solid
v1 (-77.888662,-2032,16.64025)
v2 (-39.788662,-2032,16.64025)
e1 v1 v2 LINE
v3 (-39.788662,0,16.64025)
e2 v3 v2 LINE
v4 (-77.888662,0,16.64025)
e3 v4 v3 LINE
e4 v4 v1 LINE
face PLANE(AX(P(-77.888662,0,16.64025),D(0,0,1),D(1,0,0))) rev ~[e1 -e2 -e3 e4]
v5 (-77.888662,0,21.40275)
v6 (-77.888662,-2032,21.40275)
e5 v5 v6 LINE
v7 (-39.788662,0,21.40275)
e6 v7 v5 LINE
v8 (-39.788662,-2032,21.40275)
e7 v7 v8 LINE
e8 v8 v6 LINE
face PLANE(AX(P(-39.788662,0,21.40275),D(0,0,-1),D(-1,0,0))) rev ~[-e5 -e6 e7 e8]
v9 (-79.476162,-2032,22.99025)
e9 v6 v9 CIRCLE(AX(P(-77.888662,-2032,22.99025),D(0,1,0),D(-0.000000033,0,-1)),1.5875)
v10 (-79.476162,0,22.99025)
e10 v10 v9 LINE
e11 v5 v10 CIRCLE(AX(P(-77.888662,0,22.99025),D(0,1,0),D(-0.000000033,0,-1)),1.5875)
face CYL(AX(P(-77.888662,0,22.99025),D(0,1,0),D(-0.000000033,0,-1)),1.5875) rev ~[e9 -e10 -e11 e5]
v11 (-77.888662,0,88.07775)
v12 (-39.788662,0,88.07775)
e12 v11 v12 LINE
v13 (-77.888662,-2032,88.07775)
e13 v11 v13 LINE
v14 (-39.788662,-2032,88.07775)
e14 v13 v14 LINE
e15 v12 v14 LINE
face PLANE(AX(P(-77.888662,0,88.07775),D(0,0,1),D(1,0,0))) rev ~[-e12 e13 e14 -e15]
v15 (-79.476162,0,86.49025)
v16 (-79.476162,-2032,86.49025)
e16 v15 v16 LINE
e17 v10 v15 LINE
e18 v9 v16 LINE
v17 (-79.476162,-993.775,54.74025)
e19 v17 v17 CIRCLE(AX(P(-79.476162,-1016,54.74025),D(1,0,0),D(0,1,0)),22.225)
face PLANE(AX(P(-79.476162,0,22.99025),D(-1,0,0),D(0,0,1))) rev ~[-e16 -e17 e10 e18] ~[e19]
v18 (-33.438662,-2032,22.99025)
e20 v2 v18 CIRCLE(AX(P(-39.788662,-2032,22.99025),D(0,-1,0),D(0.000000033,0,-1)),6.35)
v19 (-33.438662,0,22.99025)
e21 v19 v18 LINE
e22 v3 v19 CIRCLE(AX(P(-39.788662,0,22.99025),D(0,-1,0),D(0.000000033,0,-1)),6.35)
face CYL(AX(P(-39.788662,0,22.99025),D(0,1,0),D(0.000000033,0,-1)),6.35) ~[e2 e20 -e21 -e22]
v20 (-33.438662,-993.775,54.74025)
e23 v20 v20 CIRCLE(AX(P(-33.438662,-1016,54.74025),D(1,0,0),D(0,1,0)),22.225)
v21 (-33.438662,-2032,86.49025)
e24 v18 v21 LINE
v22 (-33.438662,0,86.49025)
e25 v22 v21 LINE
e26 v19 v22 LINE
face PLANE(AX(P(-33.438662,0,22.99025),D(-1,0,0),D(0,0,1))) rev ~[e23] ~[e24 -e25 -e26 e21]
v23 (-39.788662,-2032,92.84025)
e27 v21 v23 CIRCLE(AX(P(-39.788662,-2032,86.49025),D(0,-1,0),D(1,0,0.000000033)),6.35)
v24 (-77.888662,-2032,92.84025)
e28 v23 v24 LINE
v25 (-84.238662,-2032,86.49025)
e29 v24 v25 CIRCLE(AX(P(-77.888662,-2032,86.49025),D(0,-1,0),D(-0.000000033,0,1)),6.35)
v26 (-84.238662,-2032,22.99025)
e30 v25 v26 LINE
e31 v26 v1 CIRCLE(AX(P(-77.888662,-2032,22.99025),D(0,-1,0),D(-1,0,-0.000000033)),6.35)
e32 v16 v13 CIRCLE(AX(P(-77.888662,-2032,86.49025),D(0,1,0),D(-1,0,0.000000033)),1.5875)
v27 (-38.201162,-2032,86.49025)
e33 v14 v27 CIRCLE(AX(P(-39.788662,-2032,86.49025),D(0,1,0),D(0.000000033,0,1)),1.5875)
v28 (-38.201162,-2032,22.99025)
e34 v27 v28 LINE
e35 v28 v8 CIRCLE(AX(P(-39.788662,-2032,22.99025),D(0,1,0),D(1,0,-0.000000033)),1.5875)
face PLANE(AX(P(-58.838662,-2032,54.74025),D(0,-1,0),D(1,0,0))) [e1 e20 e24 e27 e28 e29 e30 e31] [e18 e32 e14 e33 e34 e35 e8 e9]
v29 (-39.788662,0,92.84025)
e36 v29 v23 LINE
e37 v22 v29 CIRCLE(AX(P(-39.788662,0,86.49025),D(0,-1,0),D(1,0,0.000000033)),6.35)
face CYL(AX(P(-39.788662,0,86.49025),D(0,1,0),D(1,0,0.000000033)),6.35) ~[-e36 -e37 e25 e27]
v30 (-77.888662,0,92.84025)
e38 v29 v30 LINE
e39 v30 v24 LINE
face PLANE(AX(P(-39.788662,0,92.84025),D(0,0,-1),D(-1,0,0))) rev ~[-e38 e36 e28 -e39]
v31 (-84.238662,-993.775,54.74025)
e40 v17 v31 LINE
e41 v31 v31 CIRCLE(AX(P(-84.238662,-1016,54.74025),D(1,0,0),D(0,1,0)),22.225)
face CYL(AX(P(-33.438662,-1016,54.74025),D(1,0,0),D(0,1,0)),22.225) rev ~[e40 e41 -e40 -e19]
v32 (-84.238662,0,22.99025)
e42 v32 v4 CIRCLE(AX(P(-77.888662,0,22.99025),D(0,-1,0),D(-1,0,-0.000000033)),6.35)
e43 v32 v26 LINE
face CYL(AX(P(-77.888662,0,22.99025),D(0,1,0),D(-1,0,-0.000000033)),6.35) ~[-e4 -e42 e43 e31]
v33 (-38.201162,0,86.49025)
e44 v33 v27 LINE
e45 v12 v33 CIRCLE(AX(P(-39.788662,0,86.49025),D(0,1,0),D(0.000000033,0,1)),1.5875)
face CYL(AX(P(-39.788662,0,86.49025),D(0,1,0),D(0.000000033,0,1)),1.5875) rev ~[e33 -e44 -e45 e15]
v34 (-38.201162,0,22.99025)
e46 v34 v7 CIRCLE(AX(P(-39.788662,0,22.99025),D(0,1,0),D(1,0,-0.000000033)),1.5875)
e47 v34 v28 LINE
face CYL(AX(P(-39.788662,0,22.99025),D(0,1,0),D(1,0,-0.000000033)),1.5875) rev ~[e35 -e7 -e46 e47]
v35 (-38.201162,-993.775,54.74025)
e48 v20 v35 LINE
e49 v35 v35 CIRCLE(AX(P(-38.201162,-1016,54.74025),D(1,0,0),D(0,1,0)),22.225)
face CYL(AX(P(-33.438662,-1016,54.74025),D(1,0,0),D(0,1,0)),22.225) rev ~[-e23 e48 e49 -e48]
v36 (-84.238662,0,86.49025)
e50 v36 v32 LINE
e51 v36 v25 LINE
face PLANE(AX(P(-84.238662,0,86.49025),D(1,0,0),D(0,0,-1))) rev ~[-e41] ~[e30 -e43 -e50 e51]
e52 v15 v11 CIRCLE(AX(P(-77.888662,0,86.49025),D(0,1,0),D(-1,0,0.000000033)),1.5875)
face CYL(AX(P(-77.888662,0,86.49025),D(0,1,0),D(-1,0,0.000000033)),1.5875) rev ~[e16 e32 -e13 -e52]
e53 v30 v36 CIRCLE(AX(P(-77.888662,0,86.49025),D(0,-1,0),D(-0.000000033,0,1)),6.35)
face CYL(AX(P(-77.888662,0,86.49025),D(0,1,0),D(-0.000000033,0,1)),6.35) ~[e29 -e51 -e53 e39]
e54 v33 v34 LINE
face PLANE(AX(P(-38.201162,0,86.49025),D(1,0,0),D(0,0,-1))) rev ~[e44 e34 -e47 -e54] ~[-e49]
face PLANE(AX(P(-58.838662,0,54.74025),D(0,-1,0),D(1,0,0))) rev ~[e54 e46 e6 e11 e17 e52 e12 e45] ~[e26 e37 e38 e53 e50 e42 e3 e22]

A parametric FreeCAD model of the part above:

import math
import FreeCAD as App
import Part
import Sketcher
from FreeCAD import Vector
Q = App.Units.Quantity

doc = App.newDocument("Part")
body = doc.addObject("PartDesign::Body", "Body")

# Sketch on XZ plane
sketch1 = doc.addObject("Sketcher::SketchObject", "Sketch")
body.addObject(sketch1)
sketch1.AttachmentSupport = (doc.XZ_Plane, [""])
sketch1.MapMode = "FlatFace"
sketch1.addGeometry(Part.ArcOfCircle(Part.Circle(Vector(-77.9, 23, 0), Vector(0, 0, 1), 6.4), math.radians(-180), math.radians(-90)), False)
sketch1.addGeometry(Part.LineSegment(Vector(-77.9, 16.6, 0), Vector(-39.8, 16.6, 0)), False)
sketch1.addGeometry(Part.ArcOfCircle(Part.Circle(Vector(-39.8, 23, 0), Vector(0, 0, 1), 6.4), math.radians(-90), math.radians(0)), False)
sketch1.addGeometry(Part.LineSegment(Vector(-33.4, 23, 0), Vector(-33.4, 86.5, 0)), False)
sketch1.addGeometry(Part.ArcOfCircle(Part.Circle(Vector(-39.8, 86.5, 0), Vector(0, 0, 1), 6.4), math.radians(0), math.radians(90)), False)
sketch1.addGeometry(Part.LineSegment(Vector(-39.8, 92.8, 0), Vector(-77.9, 92.8, 0)), False)
sketch1.addGeometry(Part.ArcOfCircle(Part.Circle(Vector(-77.9, 86.5, 0), Vector(0, 0, 1), 6.4), math.radians(90), math.radians(180)), False)
sketch1.addGeometry(Part.LineSegment(Vector(-84.2, 86.5, 0), Vector(-84.2, 23, 0)), False)
sketch1.addGeometry(Part.LineSegment(Vector(-79.5, 23, 0), Vector(-79.5, 86.5, 0)), False)
sketch1.addGeometry(Part.ArcOfCircle(Part.Circle(Vector(-77.9, 86.5, 0), Vector(0, 0, 1), 1.6), math.radians(90), math.radians(180)), False)
sketch1.addGeometry(Part.LineSegment(Vector(-77.9, 88.1, 0), Vector(-39.8, 88.1, 0)), False)
sketch1.addGeometry(Part.ArcOfCircle(Part.Circle(Vector(-39.8, 86.5, 0), Vector(0, 0, 1), 1.6), math.radians(0), math.radians(90)), False)
sketch1.addGeometry(Part.LineSegment(Vector(-38.2, 86.5, 0), Vector(-38.2, 23, 0)), False)
sketch1.addGeometry(Part.ArcOfCircle(Part.Circle(Vector(-39.8, 23, 0), Vector(0, 0, 1), 1.6), math.radians(-90), math.radians(0)), False)
sketch1.addGeometry(Part.LineSegment(Vector(-39.8, 21.4, 0), Vector(-77.9, 21.4, 0)), False)
sketch1.addGeometry(Part.ArcOfCircle(Part.Circle(Vector(-77.9, 23, 0), Vector(0, 0, 1), 1.6), math.radians(-180), math.radians(-90)), False)
sketch1.addConstraint(Sketcher.Constraint("Tangent", 0, 2, 1, 1))
sketch1.addConstraint(Sketcher.Constraint("Tangent", 1, 2, 2, 1))
sketch1.addConstraint(Sketcher.Constraint("Tangent", 2, 2, 3, 1))
sketch1.addConstraint(Sketcher.Constraint("Tangent", 3, 2, 4, 1))
sketch1.addConstraint(Sketcher.Constraint("Tangent", 4, 2, 5, 1))
sketch1.addConstraint(Sketcher.Constraint("Tangent", 5, 2, 6, 1))
sketch1.addConstraint(Sketcher.Constraint("Tangent", 6, 2, 7, 1))
sketch1.addConstraint(Sketcher.Constraint("Tangent", 7, 2, 0, 1))
sketch1.addConstraint(Sketcher.Constraint("Tangent", 8, 2, 9, 2))
sketch1.addConstraint(Sketcher.Constraint("Tangent", 9, 1, 10, 1))
sketch1.addConstraint(Sketcher.Constraint("Tangent", 10, 2, 11, 2))
sketch1.addConstraint(Sketcher.Constraint("Tangent", 11, 1, 12, 1))
sketch1.addConstraint(Sketcher.Constraint("Tangent", 12, 2, 13, 2))
sketch1.addConstraint(Sketcher.Constraint("Tangent", 13, 1, 14, 1))
sketch1.addConstraint(Sketcher.Constraint("Tangent", 14, 2, 15, 2))
sketch1.addConstraint(Sketcher.Constraint("Tangent", 15, 1, 8, 1))
sketch1.addConstraint(Sketcher.Constraint("Horizontal", 1))
sketch1.addConstraint(Sketcher.Constraint("Vertical", 3))
sketch1.addConstraint(Sketcher.Constraint("Horizontal", 5))
sketch1.addConstraint(Sketcher.Constraint("Vertical", 7))
sketch1.addConstraint(Sketcher.Constraint("Vertical", 8))
sketch1.addConstraint(Sketcher.Constraint("Horizontal", 10))
sketch1.addConstraint(Sketcher.Constraint("Vertical", 12))
sketch1.addConstraint(Sketcher.Constraint("Horizontal", 14))
sketch1.addConstraint(Sketcher.Constraint("Coincident", 9, 3, 6, 3))
sketch1.addConstraint(Sketcher.Constraint("Coincident", 11, 3, 4, 3))
sketch1.addConstraint(Sketcher.Constraint("Coincident", 13, 3, 2, 3))
sketch1.addConstraint(Sketcher.Constraint("Equal", 0, 2))
sketch1.addConstraint(Sketcher.Constraint("Equal", 2, 4))
sketch1.addConstraint(Sketcher.Constraint("Equal", 4, 6))
sketch1.addConstraint(Sketcher.Constraint("Equal", 13, 15))
sketch1.addConstraint(Sketcher.Constraint("Radius", 0, Q("0.25 in")))
sketch1.addConstraint(Sketcher.Constraint("DistanceX", 1, 1, 1, 2, Q("1.5 in")))
sketch1.addConstraint(Sketcher.Constraint("DistanceY", 3, 1, 3, 2, Q("2.5 in")))
sketch1.addConstraint(Sketcher.Constraint("Radius", 9, Q("0.0625 in")))
sketch1.addConstraint(Sketcher.Constraint("DistanceX", 0, 3, -1, 1, Q("77.888662 mm")))
sketch1.addConstraint(Sketcher.Constraint("DistanceY", -1, 1, 0, 3, Q("22.99025 mm")))
pad1 = doc.addObject("PartDesign::Pad", "Pad")
body.addObject(pad1)
pad1.Profile = sketch1
pad1.Length = Q("80 in")

# Sketch on YZ plane
sketch2 = doc.addObject("Sketcher::SketchObject", "Sketch001")
body.addObject(sketch2)
sketch2.AttachmentSupport = (doc.YZ_Plane, [""])
sketch2.MapMode = "FlatFace"
sketch2.AttachmentOffset = App.Placement(Vector(0, 0, -33.438662), App.Rotation())
sketch2.addGeometry(Part.Circle(Vector(-1016, 55, 0), Vector(0, 0, 1), 22), False)
sketch2.addConstraint(Sketcher.Constraint("Diameter", 0, Q("1.75 in")))
sketch2.addConstraint(Sketcher.Constraint("DistanceX", 0, 3, -1, 1, Q("40 in")))
sketch2.addConstraint(Sketcher.Constraint("DistanceY", -1, 1, 0, 3, Q("54.74025 mm")))
pocket1 = doc.addObject("PartDesign::Pocket", "Pocket")
body.addObject(pocket1)
pocket1.Profile = sketch2
pocket1.Type = "ThroughAll"

doc.recompute()
